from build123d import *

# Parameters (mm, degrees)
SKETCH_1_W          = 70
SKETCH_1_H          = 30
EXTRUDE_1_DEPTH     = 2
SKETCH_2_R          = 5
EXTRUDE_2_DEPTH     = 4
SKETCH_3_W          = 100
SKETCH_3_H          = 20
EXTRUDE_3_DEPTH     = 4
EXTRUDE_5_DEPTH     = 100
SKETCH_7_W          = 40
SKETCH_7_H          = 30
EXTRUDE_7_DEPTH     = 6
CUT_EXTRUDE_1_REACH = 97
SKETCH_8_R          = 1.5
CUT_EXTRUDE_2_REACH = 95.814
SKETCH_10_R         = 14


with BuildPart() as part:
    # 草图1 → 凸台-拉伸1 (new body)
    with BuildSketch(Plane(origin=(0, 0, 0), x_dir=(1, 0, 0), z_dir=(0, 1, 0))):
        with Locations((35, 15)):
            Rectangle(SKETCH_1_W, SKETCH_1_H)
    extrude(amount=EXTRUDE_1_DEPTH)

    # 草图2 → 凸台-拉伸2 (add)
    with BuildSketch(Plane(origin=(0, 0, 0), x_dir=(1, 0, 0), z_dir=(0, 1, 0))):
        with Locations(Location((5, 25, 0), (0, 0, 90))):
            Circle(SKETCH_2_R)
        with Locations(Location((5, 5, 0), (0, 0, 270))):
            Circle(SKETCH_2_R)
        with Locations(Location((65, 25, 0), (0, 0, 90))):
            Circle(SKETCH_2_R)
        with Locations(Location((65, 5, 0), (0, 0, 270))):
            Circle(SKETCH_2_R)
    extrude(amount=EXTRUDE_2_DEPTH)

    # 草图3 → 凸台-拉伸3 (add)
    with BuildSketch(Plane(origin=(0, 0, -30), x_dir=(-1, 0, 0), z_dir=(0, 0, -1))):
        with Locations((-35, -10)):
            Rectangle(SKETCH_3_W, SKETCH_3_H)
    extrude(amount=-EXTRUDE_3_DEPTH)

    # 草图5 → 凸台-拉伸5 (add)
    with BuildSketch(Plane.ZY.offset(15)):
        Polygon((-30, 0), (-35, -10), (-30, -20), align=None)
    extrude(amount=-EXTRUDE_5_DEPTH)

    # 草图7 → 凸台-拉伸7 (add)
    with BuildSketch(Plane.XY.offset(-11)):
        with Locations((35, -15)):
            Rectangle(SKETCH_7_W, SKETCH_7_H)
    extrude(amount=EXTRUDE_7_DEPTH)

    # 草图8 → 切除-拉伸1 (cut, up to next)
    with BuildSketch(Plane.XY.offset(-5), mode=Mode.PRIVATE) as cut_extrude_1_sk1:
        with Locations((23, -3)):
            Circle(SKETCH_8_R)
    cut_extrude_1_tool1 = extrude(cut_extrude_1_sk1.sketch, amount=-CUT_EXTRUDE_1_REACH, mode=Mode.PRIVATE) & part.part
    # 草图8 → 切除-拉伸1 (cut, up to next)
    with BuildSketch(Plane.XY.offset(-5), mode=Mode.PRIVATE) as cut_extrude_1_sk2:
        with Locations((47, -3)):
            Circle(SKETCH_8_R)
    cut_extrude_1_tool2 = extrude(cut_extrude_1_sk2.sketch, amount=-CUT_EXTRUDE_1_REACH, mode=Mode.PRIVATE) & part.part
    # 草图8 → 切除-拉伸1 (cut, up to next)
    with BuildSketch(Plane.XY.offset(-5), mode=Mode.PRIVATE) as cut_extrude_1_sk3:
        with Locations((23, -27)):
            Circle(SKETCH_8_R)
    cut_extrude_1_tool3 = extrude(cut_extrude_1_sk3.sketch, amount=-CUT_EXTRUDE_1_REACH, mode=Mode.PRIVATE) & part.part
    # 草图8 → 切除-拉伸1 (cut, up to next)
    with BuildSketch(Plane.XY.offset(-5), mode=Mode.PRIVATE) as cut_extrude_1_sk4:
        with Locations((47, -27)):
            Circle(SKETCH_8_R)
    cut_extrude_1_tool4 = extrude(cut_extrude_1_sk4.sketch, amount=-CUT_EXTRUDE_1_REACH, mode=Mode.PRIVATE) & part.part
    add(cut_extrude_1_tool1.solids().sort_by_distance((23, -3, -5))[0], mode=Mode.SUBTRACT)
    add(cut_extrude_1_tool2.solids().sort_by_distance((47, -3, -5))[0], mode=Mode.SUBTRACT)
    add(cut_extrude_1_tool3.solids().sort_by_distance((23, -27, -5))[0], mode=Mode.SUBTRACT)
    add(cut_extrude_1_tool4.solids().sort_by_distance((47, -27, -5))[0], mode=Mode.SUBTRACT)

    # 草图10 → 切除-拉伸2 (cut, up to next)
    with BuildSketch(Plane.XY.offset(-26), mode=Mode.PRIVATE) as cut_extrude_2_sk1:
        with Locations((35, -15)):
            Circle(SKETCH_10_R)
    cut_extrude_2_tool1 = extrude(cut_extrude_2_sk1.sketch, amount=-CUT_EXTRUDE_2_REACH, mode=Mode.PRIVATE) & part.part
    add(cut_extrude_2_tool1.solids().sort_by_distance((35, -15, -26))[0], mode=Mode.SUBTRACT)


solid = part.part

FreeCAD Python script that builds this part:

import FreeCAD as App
import Part
import Sketcher
from FreeCAD import Vector


def add_polygon(sketch, points):
    """Adds a closed chain of lines whose ends are joined by coincident constraints."""
    first, n = sketch.GeometryCount, len(points)
    for a, b in zip(points, points[1:] + points[:1]):
        sketch.addGeometry(Part.LineSegment(App.Vector(*a, 0), App.Vector(*b, 0)), False)
    for i in range(n):
        sketch.addConstraint(Sketcher.Constraint("Coincident", first + i, 2, first + (i + 1) % n, 1))

doc = App.newDocument("Part")
body = doc.addObject("PartDesign::Body", "Body")

# Sketch on XZ plane
sketch1 = doc.addObject("Sketcher::SketchObject", "Sketch")
body.addObject(sketch1)
sketch1.AttachmentSupport = (doc.XZ_Plane, [""])
sketch1.MapMode = "FlatFace"
add_polygon(sketch1, [(0, -30), (0, 0), (70, 0), (70, -30)])  # lines 0-3
sketch1.addConstraint([
    Sketcher.Constraint("Vertical", 0),
    Sketcher.Constraint("Horizontal", 1),
    Sketcher.Constraint("Vertical", 2),
    Sketcher.Constraint("Horizontal", 3),
    Sketcher.Constraint("Coincident", 0, 2, -1, 1),
    Sketcher.Constraint("DistanceX", 1, 1, 1, 2, 70.0),
    Sketcher.Constraint("DistanceY", 0, 1, 0, 2, 30.0),
])
pad1 = doc.addObject("PartDesign::Pad", "Pad")
body.addObject(pad1)
pad1.Profile = sketch1
pad1.Length = 2
pad1.Reversed = True

# Sketch on XZ plane
sketch2 = doc.addObject("Sketcher::SketchObject", "Sketch001")
body.addObject(sketch2)
sketch2.AttachmentSupport = (doc.XZ_Plane, [""])
sketch2.MapMode = "FlatFace"
sketch2.addGeometry([
    Part.Circle(Vector(5, -25, 0), Vector(0, 0, 1), 5),
    Part.Circle(Vector(5, -5, 0), Vector(0, 0, 1), 5),
    Part.Circle(Vector(65, -25, 0), Vector(0, 0, 1), 5),
    Part.Circle(Vector(65, -5, 0), Vector(0, 0, 1), 5),
], False)
sketch2.addConstraint([
    Sketcher.Constraint("Equal", 0, 1),
    Sketcher.Constraint("Equal", 1, 2),
    Sketcher.Constraint("Equal", 2, 3),
    Sketcher.Constraint("Horizontal", 0, 3, 2, 3),
    Sketcher.Constraint("Horizontal", 1, 3, 3, 3),
    Sketcher.Constraint("Vertical", 0, 3, 1, 3),
    Sketcher.Constraint("Vertical", 2, 3, 3, 3),
    Sketcher.Constraint("Diameter", 0, 10.0),
    Sketcher.Constraint("DistanceX", -1, 1, 0, 3, 5.0),
    Sketcher.Constraint("DistanceY", 0, 3, -1, 1, 25.0),
    Sketcher.Constraint("DistanceY", 1, 3, -1, 1, 5.0),
    Sketcher.Constraint("DistanceX", -1, 1, 2, 3, 65.0),
])
pad2 = doc.addObject("PartDesign::Pad", "Pad001")
body.addObject(pad2)
pad2.Profile = sketch2
pad2.Length = 4
pad2.Reversed = True

# Sketch on XY plane
sketch3 = doc.addObject("Sketcher::SketchObject", "Sketch002")
body.addObject(sketch3)
sketch3.AttachmentSupport = (doc.XY_Plane, [""])
sketch3.MapMode = "FlatFace"
sketch3.AttachmentOffset = App.Placement(Vector(0, 0, -30), App.Rotation())
add_polygon(sketch3, [(85, 0), (85, -20), (-15, -20), (-15, 0)])  # lines 0-3
sketch3.addConstraint([
    Sketcher.Constraint("Vertical", 0),
    Sketcher.Constraint("Horizontal", 1),
    Sketcher.Constraint("Vertical", 2),
    Sketcher.Constraint("Horizontal", 3),
    Sketcher.Constraint("PointOnObject", 2, 2, -1),
    Sketcher.Constraint("DistanceX", 1, 2, 1, 1, 100.0),
    Sketcher.Constraint("DistanceY", 0, 2, 0, 1, 20.0),
    Sketcher.Constraint("DistanceX", -1, 1, 0, 2, 85.0),
])
pad3 = doc.addObject("PartDesign::Pad", "Pad002")
body.addObject(pad3)
pad3.Profile = sketch3
pad3.Length = 4

# Sketch on YZ plane
sketch4 = doc.addObject("Sketcher::SketchObject", "Sketch003")
body.addObject(sketch4)
sketch4.AttachmentSupport = (doc.YZ_Plane, [""])
sketch4.MapMode = "FlatFace"
sketch4.AttachmentOffset = App.Placement(Vector(0, 0, -15), App.Rotation())
add_polygon(sketch4, [(0, -30), (-10, -35), (-20, -30)])  # lines 0-2
sketch4.addConstraint([
    Sketcher.Constraint("Horizontal", 2),
    Sketcher.Constraint("PointOnObject", 2, 2, -2),
    Sketcher.Constraint("Equal", 0, 1),
    Sketcher.Constraint("DistanceX", 2, 1, 2, 2, 20.0),
    Sketcher.Constraint("DistanceY", 0, 2, -1, 1, 35.0),
    Sketcher.Constraint("DistanceY", 1, 2, -1, 1, 30.0),
])
pad4 = doc.addObject("PartDesign::Pad", "Pad003")
body.addObject(pad4)
pad4.Profile = sketch4
pad4.Length = 100

# Sketch on XY plane
sketch5 = doc.addObject("Sketcher::SketchObject", "Sketch004")
body.addObject(sketch5)
sketch5.AttachmentSupport = (doc.XY_Plane, [""])
sketch5.MapMode = "FlatFace"
sketch5.AttachmentOffset = App.Placement(Vector(0, 0, -11), App.Rotation())
add_polygon(sketch5, [(15, 0), (15, -30), (55, -30), (55, 0)])  # lines 0-3
sketch5.addConstraint([
    Sketcher.Constraint("Vertical", 0),
    Sketcher.Constraint("Horizontal", 1),
    Sketcher.Constraint("Vertical", 2),
    Sketcher.Constraint("Horizontal", 3),
    Sketcher.Constraint("PointOnObject", 2, 2, -1),
    Sketcher.Constraint("DistanceX", 1, 1, 1, 2, 40.0),
    Sketcher.Constraint("DistanceY", 0, 2, 0, 1, 30.0),
    Sketcher.Constraint("DistanceX", -1, 1, 0, 2, 15.0),
])
pad5 = doc.addObject("PartDesign::Pad", "Pad004")
body.addObject(pad5)
pad5.Profile = sketch5
pad5.Length = 6

# Sketch on XY plane
sketch6 = doc.addObject("Sketcher::SketchObject", "Sketch005")
body.addObject(sketch6)
sketch6.AttachmentSupport = (doc.XY_Plane, [""])
sketch6.MapMode = "FlatFace"
sketch6.AttachmentOffset = App.Placement(Vector(0, 0, -5), App.Rotation())
sketch6.addGeometry(Part.Circle(Vector(23, -3, 0), Vector(0, 0, 1), 1.5), False)
sketch6.addConstraint([
    Sketcher.Constraint("Diameter", 0, 3.0),
    Sketcher.Constraint("DistanceX", -1, 1, 0, 3, 23.0),
    Sketcher.Constraint("DistanceY", 0, 3, -1, 1, 3.0),
])
pocket1 = doc.addObject("PartDesign::Pocket", "Pocket")
body.addObject(pocket1)
pocket1.Profile = sketch6
pocket1.Type = "UpToFirst"

# Sketch on XY plane
sketch7 = doc.addObject("Sketcher::SketchObject", "Sketch006")
body.addObject(sketch7)
sketch7.AttachmentSupport = (doc.XY_Plane, [""])
sketch7.MapMode = "FlatFace"
sketch7.AttachmentOffset = App.Placement(Vector(0, 0, -5), App.Rotation())
sketch7.addGeometry(Part.Circle(Vector(47, -3, 0), Vector(0, 0, 1), 1.5), False)
sketch7.addConstraint([
    Sketcher.Constraint("Diameter", 0, 3.0),
    Sketcher.Constraint("DistanceX", -1, 1, 0, 3, 47.0),
    Sketcher.Constraint("DistanceY", 0, 3, -1, 1, 3.0),
])
pocket2 = doc.addObject("PartDesign::Pocket", "Pocket001")
body.addObject(pocket2)
pocket2.Profile = sketch7
pocket2.Type = "UpToFirst"

# Sketch on XY plane
sketch8 = doc.addObject("Sketcher::SketchObject", "Sketch007")
body.addObject(sketch8)
sketch8.AttachmentSupport = (doc.XY_Plane, [""])
sketch8.MapMode = "FlatFace"
sketch8.AttachmentOffset = App.Placement(Vector(0, 0, -5), App.Rotation())
sketch8.addGeometry(Part.Circle(Vector(23, -27, 0), Vector(0, 0, 1), 1.5), False)
sketch8.addConstraint([
    Sketcher.Constraint("Diameter", 0, 3.0),
    Sketcher.Constraint("DistanceX", -1, 1, 0, 3, 23.0),
    Sketcher.Constraint("DistanceY", 0, 3, -1, 1, 27.0),
])
pocket3 = doc.addObject("PartDesign::Pocket", "Pocket002")
body.addObject(pocket3)
pocket3.Profile = sketch8
pocket3.Type = "UpToFirst"

# Sketch on XY plane
sketch9 = doc.addObject("Sketcher::SketchObject", "Sketch008")
body.addObject(sketch9)
sketch9.AttachmentSupport = (doc.XY_Plane, [""])
sketch9.MapMode = "FlatFace"
sketch9.AttachmentOffset = App.Placement(Vector(0, 0, -5), App.Rotation())
sketch9.addGeometry(Part.Circle(Vector(47, -27, 0), Vector(0, 0, 1), 1.5), False)
sketch9.addConstraint([
    Sketcher.Constraint("Diameter", 0, 3.0),
    Sketcher.Constraint("DistanceX", -1, 1, 0, 3, 47.0),
    Sketcher.Constraint("DistanceY", 0, 3, -1, 1, 27.0),
])
pocket4 = doc.addObject("PartDesign::Pocket", "Pocket003")
body.addObject(pocket4)
pocket4.Profile = sketch9
pocket4.Type = "UpToFirst"

# Sketch on XY plane
sketch10 = doc.addObject("Sketcher::SketchObject", "Sketch009")
body.addObject(sketch10)
sketch10.AttachmentSupport = (doc.XY_Plane, [""])
sketch10.MapMode = "FlatFace"
sketch10.AttachmentOffset = App.Placement(Vector(0, 0, -26), App.Rotation())
sketch10.addGeometry(Part.Circle(Vector(35, -15, 0), Vector(0, 0, 1), 14), False)
sketch10.addConstraint([
    Sketcher.Constraint("Diameter", 0, 28.0),
    Sketcher.Constraint("DistanceX", -1, 1, 0, 3, 35.0),
    Sketcher.Constraint("DistanceY", 0, 3, -1, 1, 15.0),
])
pocket5 = doc.addObject("PartDesign::Pocket", "Pocket004")
body.addObject(pocket5)
pocket5.Profile = sketch10
pocket5.Type = "UpToFirst"

doc.recompute()
